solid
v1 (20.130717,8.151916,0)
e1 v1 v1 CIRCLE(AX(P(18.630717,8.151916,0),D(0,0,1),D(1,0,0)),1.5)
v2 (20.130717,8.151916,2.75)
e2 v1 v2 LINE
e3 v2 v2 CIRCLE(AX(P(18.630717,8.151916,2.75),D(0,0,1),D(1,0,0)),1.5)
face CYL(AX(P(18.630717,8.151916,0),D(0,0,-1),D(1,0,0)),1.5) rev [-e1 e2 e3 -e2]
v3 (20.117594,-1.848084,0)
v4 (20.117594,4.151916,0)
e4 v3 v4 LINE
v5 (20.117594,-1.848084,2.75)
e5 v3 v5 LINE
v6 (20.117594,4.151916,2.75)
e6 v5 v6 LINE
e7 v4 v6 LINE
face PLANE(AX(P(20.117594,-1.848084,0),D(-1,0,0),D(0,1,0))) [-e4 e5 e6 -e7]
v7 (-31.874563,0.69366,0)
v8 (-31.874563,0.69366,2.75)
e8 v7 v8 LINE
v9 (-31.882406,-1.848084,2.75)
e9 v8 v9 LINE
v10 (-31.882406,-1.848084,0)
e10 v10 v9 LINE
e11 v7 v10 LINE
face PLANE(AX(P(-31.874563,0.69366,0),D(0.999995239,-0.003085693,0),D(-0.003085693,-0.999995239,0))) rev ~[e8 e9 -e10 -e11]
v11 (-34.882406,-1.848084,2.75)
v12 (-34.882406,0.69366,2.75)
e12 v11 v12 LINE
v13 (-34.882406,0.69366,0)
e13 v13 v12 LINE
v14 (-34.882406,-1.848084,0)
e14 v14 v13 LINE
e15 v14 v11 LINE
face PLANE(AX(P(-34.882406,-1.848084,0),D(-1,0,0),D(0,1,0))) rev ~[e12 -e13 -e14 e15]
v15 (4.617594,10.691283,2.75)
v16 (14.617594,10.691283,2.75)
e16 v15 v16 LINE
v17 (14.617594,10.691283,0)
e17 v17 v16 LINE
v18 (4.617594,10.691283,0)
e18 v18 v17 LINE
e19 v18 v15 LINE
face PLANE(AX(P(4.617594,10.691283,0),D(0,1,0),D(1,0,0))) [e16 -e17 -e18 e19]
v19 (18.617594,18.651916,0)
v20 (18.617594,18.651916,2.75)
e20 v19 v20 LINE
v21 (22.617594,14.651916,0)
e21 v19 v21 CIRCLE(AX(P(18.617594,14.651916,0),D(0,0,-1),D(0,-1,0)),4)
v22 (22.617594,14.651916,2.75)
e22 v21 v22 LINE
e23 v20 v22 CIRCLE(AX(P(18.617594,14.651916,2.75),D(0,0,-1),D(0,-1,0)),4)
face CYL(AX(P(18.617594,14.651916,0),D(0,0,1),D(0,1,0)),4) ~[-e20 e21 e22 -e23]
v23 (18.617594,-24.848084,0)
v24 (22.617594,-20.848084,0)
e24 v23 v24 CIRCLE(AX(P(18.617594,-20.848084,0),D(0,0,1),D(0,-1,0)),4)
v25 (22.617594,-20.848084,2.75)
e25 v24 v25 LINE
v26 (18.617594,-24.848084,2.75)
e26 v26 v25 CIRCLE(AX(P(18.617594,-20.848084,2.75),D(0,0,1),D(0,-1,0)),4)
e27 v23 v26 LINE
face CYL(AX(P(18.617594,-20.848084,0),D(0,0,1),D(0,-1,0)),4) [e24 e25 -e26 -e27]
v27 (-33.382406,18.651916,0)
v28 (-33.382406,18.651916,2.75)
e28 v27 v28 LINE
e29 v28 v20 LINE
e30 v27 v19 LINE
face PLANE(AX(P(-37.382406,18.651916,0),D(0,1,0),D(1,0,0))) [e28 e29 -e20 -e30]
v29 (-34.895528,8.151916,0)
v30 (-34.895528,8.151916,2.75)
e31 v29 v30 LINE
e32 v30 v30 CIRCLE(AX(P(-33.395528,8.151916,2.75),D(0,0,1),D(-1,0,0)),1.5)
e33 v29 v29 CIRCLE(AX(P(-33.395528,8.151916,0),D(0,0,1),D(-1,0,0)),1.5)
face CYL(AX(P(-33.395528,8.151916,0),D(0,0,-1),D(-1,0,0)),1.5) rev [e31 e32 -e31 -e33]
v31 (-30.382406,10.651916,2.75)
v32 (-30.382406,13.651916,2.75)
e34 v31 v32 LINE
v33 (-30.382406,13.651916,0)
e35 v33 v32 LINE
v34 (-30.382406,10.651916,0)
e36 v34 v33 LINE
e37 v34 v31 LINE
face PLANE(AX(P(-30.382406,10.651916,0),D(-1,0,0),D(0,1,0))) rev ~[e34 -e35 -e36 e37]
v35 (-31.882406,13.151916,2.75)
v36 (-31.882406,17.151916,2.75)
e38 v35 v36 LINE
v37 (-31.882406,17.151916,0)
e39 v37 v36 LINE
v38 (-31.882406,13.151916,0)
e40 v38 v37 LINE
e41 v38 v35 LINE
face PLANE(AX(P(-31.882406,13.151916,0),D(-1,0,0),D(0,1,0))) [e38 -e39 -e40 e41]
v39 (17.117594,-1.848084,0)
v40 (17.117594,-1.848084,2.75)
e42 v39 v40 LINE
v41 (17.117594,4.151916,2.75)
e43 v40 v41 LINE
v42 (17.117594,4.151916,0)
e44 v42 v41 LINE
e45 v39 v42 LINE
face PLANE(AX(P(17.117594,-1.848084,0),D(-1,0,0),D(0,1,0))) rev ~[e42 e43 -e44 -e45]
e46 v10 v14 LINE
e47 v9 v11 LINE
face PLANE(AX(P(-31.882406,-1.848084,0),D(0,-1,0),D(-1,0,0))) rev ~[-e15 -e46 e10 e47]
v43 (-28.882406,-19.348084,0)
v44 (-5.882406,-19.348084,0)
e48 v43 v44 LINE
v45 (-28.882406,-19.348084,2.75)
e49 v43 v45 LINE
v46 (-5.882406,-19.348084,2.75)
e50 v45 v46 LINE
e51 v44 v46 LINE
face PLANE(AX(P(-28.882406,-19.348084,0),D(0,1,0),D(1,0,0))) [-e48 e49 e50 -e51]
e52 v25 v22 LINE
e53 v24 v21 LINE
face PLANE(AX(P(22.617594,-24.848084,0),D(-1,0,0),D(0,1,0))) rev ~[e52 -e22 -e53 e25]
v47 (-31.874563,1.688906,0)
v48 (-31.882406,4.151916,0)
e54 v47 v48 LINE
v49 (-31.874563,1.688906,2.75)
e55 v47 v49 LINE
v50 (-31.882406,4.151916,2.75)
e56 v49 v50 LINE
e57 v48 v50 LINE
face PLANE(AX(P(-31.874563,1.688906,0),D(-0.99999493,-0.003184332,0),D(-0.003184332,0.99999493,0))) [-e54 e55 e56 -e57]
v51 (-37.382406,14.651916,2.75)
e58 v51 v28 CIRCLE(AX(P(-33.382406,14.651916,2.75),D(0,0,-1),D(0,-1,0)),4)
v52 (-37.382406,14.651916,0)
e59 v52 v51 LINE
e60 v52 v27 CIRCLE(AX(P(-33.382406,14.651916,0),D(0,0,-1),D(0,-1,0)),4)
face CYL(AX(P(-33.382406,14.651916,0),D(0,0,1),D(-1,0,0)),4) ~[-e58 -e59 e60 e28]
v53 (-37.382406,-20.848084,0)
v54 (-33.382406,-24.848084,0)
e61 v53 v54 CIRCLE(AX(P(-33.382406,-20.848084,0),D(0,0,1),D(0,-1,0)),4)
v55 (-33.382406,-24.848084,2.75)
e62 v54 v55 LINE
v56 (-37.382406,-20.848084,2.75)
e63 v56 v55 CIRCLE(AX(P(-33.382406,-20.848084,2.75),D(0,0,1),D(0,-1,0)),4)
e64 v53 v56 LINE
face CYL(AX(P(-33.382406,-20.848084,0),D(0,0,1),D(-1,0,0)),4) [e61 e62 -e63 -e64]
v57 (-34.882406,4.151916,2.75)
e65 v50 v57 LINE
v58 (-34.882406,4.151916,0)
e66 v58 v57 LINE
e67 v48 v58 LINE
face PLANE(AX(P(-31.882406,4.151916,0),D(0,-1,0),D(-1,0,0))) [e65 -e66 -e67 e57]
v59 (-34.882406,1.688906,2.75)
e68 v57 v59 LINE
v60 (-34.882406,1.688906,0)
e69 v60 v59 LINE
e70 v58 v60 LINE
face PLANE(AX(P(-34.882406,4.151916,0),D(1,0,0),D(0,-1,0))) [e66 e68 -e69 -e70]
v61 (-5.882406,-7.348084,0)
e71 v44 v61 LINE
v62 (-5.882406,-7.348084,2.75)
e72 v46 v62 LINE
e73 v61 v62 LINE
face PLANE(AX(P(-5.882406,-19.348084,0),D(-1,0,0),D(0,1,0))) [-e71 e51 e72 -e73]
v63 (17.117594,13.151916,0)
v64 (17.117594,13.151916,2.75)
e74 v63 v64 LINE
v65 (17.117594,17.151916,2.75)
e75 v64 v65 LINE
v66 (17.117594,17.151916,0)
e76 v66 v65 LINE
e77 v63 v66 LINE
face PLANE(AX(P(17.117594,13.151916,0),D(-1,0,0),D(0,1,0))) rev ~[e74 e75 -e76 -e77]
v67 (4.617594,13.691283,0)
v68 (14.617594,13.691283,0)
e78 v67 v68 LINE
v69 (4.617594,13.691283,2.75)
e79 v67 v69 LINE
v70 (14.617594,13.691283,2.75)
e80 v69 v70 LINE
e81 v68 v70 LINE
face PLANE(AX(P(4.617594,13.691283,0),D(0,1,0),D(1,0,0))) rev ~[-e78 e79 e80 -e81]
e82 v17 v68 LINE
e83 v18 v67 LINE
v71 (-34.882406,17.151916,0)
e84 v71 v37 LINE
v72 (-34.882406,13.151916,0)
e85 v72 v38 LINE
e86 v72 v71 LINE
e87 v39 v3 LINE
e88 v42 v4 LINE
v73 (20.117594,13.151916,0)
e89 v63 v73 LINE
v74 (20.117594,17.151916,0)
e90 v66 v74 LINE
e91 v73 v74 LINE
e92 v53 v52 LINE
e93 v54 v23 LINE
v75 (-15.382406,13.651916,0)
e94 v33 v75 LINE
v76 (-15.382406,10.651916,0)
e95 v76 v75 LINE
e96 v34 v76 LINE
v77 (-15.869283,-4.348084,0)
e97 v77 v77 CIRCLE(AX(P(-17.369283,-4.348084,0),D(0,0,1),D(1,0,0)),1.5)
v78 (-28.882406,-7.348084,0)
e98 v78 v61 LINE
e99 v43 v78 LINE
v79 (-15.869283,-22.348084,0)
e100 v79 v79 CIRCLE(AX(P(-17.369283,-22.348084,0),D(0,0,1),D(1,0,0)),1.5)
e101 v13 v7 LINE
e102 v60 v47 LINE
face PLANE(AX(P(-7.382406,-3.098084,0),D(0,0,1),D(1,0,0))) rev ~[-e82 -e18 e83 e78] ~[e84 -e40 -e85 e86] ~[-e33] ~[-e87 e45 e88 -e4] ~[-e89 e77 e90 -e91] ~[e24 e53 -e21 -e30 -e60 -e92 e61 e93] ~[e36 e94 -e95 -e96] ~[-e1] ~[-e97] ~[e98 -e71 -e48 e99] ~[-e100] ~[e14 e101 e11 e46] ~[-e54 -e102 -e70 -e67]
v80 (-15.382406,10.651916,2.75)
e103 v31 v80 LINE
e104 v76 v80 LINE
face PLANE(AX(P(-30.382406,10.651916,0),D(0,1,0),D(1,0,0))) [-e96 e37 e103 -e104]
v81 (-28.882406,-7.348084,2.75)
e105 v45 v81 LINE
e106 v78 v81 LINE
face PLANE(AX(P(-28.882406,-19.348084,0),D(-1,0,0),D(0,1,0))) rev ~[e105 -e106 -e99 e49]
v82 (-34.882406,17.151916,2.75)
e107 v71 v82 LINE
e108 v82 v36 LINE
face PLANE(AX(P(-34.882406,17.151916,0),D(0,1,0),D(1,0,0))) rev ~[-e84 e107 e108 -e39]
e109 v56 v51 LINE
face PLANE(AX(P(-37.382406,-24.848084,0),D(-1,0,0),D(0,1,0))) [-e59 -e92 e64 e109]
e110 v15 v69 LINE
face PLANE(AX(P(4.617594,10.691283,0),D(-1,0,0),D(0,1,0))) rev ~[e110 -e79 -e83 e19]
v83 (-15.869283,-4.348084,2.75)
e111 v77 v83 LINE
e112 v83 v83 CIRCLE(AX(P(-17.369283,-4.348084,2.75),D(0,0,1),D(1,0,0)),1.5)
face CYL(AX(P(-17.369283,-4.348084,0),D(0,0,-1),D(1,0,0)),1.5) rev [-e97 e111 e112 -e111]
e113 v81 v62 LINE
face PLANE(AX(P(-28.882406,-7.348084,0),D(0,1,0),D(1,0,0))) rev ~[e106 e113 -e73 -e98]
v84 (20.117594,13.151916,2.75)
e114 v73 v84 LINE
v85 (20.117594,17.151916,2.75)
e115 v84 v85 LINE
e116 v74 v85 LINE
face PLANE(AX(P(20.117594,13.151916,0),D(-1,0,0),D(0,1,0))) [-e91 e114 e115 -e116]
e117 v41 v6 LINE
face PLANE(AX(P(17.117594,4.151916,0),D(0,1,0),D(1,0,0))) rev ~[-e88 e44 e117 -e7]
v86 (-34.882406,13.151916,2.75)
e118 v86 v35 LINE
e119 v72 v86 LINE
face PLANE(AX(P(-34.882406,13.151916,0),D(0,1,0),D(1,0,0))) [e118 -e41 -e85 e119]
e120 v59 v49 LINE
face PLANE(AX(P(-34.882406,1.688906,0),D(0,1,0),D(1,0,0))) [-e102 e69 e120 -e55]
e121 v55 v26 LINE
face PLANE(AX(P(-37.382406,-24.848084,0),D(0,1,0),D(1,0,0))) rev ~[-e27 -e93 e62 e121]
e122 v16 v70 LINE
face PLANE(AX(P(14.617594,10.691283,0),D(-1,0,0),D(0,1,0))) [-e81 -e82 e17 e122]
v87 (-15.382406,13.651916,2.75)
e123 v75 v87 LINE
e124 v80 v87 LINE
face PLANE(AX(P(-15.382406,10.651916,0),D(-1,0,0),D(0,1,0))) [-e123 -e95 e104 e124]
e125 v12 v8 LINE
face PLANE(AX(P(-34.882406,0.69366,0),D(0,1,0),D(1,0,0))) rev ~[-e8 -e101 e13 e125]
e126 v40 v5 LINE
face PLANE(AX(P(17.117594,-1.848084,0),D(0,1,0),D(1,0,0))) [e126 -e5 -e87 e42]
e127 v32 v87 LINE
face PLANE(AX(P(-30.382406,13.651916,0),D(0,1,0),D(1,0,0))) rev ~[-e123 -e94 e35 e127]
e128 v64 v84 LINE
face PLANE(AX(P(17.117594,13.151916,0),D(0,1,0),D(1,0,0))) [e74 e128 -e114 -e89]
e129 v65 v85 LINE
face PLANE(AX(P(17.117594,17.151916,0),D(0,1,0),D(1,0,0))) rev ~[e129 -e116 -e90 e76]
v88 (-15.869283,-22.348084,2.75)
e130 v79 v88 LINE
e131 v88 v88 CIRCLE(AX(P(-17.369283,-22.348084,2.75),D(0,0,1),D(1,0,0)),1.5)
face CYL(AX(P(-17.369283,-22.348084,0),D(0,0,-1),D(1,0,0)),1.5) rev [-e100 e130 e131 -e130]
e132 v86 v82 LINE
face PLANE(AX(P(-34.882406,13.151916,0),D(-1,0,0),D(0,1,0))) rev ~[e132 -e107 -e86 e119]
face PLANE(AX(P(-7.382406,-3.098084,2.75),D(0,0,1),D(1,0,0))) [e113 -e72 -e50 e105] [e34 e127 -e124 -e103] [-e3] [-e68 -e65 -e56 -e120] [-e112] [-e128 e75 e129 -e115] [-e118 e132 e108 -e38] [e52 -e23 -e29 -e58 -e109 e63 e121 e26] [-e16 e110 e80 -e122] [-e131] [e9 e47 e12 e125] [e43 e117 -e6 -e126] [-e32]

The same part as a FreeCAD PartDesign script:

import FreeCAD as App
import Part
import Sketcher


def edges_at(feature, points):
    """Names of the edges that pass closest to the given points."""
    edges = feature.Shape.Edges
    near = lambda p: min(range(len(edges)), key=lambda i: edges[i].distToShape(Part.Vertex(*p))[0])
    return sorted({f"Edge{near(p) + 1}" for p in points})

doc = App.newDocument("Part")
params = doc.addObject("Spreadsheet::Sheet", "Params")
for row, (alias, value) in enumerate([
    ("sketch1_diameter", "3 mm"),
    ("sketch1_width", "60 mm"),
    ("sketch1_width2", "23 mm"),
    ("sketch1_width3", "3 mm"),
    ("sketch1_width4", "15 mm"),
    ("pad1_length", "2.75 mm"),
    ("fillet_radius", "4 mm"),
], start=1):
    params.set(f"A{row}", alias)
    params.set(f"B{row}", "=" + value)
    params.setAlias(f"B{row}", alias)

body = doc.addObject("PartDesign::Body", "Body")

# Sketch on XY plane
sketch1 = doc.addObject("Sketcher::SketchObject", "Sketch")
body.addObject(sketch1)
sketch1.AttachmentSupport = (doc.XY_Plane, [""])
sketch1.MapMode = "FlatFace"
sketch1.addGeometry([
    Part.LineSegment(App.Vector(-37.4, 18.7, 0), App.Vector(-37.4, -24.8, 0)),  # 0
    Part.LineSegment(App.Vector(-37.4, -24.8, 0), App.Vector(22.6, -24.8, 0)),  # 1
    Part.LineSegment(App.Vector(22.6, -24.8, 0), App.Vector(22.6, 18.7, 0)),  # 2
    Part.LineSegment(App.Vector(22.6, 18.7, 0), App.Vector(-37.4, 18.7, 0)),  # 3
    Part.Circle(App.Vector(-17.4, -22.3, 0), App.Vector(0, 0, 1), 1.5),  # 4
    Part.LineSegment(App.Vector(-5.9, -19.3, 0), App.Vector(-28.9, -19.3, 0)),  # 5
    Part.LineSegment(App.Vector(-28.9, -19.3, 0), App.Vector(-28.9, -7.3, 0)),  # 6
    Part.LineSegment(App.Vector(-28.9, -7.3, 0), App.Vector(-5.9, -7.3, 0)),  # 7
    Part.LineSegment(App.Vector(-5.9, -7.3, 0), App.Vector(-5.9, -19.3, 0)),  # 8
    Part.Circle(App.Vector(-17.4, -4.3, 0), App.Vector(0, 0, 1), 1.5),  # 9
    Part.LineSegment(App.Vector(-31.9, -1.8, 0), App.Vector(-34.9, -1.8, 0)),  # 10
    Part.LineSegment(App.Vector(-34.9, -1.8, 0), App.Vector(-34.9, 0.7, 0)),  # 11
    Part.LineSegment(App.Vector(-34.9, 0.7, 0), App.Vector(-31.9, 0.7, 0)),  # 12
    Part.LineSegment(App.Vector(-31.9, 0.7, 0), App.Vector(-31.9, -1.8, 0)),  # 13
    Part.LineSegment(App.Vector(-34.9, 4.2, 0), App.Vector(-31.9, 4.2, 0)),  # 14
    Part.LineSegment(App.Vector(-31.9, 4.2, 0), App.Vector(-31.9, 1.7, 0)),  # 15
    Part.LineSegment(App.Vector(-31.9, 1.7, 0), App.Vector(-34.9, 1.7, 0)),  # 16
    Part.LineSegment(App.Vector(-34.9, 1.7, 0), App.Vector(-34.9, 4.2, 0)),  # 17
    Part.Circle(App.Vector(-33.4, 8.2, 0), App.Vector(0, 0, 1), 1.5),  # 18
    Part.LineSegment(App.Vector(-31.9, 13.2, 0), App.Vector(-34.9, 13.2, 0)),  # 19
    Part.LineSegment(App.Vector(-34.9, 13.2, 0), App.Vector(-34.9, 17.2, 0)),  # 20
    Part.LineSegment(App.Vector(-34.9, 17.2, 0), App.Vector(-31.9, 17.2, 0)),  # 21
    Part.LineSegment(App.Vector(-31.9, 17.2, 0), App.Vector(-31.9, 13.2, 0)),  # 22
    Part.LineSegment(App.Vector(-15.4, 10.7, 0), App.Vector(-30.4, 10.7, 0)),  # 23
    Part.LineSegment(App.Vector(-30.4, 10.7, 0), App.Vector(-30.4, 13.7, 0)),  # 24
    Part.LineSegment(App.Vector(-30.4, 13.7, 0), App.Vector(-15.4, 13.7, 0)),  # 25
    Part.LineSegment(App.Vector(-15.4, 13.7, 0), App.Vector(-15.4, 10.7, 0)),  # 26
    Part.LineSegment(App.Vector(20.1, -1.8, 0), App.Vector(17.1, -1.8, 0)),  # 27
    Part.LineSegment(App.Vector(17.1, -1.8, 0), App.Vector(17.1, 4.2, 0)),  # 28
    Part.LineSegment(App.Vector(17.1, 4.2, 0), App.Vector(20.1, 4.2, 0)),  # 29
    Part.LineSegment(App.Vector(20.1, 4.2, 0), App.Vector(20.1, -1.8, 0)),  # 30
    Part.Circle(App.Vector(18.6, 8.2, 0), App.Vector(0, 0, 1), 1.5),  # 31
    Part.LineSegment(App.Vector(14.6, 10.7, 0), App.Vector(4.6, 10.7, 0)),  # 32
    Part.LineSegment(App.Vector(4.6, 10.7, 0), App.Vector(4.6, 13.7, 0)),  # 33
    Part.LineSegment(App.Vector(4.6, 13.7, 0), App.Vector(14.6, 13.7, 0)),  # 34
    Part.LineSegment(App.Vector(14.6, 13.7, 0), App.Vector(14.6, 10.7, 0)),  # 35
    Part.LineSegment(App.Vector(20.1, 13.2, 0), App.Vector(17.1, 13.2, 0)),  # 36
    Part.LineSegment(App.Vector(17.1, 13.2, 0), App.Vector(17.1, 17.2, 0)),  # 37
    Part.LineSegment(App.Vector(17.1, 17.2, 0), App.Vector(20.1, 17.2, 0)),  # 38
    Part.LineSegment(App.Vector(20.1, 17.2, 0), App.Vector(20.1, 13.2, 0)),  # 39
], False)
sketch1.addConstraint([
    Sketcher.Constraint("Coincident", 0, 2, 1, 1),
    Sketcher.Constraint("Coincident", 1, 2, 2, 1),
    Sketcher.Constraint("Coincident", 2, 2, 3, 1),
    Sketcher.Constraint("Coincident", 3, 2, 0, 1),
    Sketcher.Constraint("Coincident", 5, 2, 6, 1),
    Sketcher.Constraint("Coincident", 6, 2, 7, 1),
    Sketcher.Constraint("Coincident", 7, 2, 8, 1),
    Sketcher.Constraint("Coincident", 8, 2, 5, 1),
    Sketcher.Constraint("Coincident", 10, 2, 11, 1),
    Sketcher.Constraint("Coincident", 11, 2, 12, 1),
    Sketcher.Constraint("Coincident", 12, 2, 13, 1),
    Sketcher.Constraint("Coincident", 13, 2, 10, 1),
    Sketcher.Constraint("Coincident", 14, 2, 15, 1),
    Sketcher.Constraint("Coincident", 15, 2, 16, 1),
    Sketcher.Constraint("Coincident", 16, 2, 17, 1),
    Sketcher.Constraint("Coincident", 17, 2, 14, 1),
    Sketcher.Constraint("Coincident", 19, 2, 20, 1),
    Sketcher.Constraint("Coincident", 20, 2, 21, 1),
    Sketcher.Constraint("Coincident", 21, 2, 22, 1),
    Sketcher.Constraint("Coincident", 22, 2, 19, 1),
    Sketcher.Constraint("Coincident", 23, 2, 24, 1),
    Sketcher.Constraint("Coincident", 24, 2, 25, 1),
    Sketcher.Constraint("Coincident", 25, 2, 26, 1),
    Sketcher.Constraint("Coincident", 26, 2, 23, 1),
    Sketcher.Constraint("Coincident", 27, 2, 28, 1),
    Sketcher.Constraint("Coincident", 28, 2, 29, 1),
    Sketcher.Constraint("Coincident", 29, 2, 30, 1),
    Sketcher.Constraint("Coincident", 30, 2, 27, 1),
    Sketcher.Constraint("Coincident", 32, 2, 33, 1),
    Sketcher.Constraint("Coincident", 33, 2, 34, 1),
    Sketcher.Constraint("Coincident", 34, 2, 35, 1),
    Sketcher.Constraint("Coincident", 35, 2, 32, 1),
    Sketcher.Constraint("Coincident", 36, 2, 37, 1),
    Sketcher.Constraint("Coincident", 37, 2, 38, 1),
    Sketcher.Constraint("Coincident", 38, 2, 39, 1),
    Sketcher.Constraint("Coincident", 39, 2, 36, 1),
    Sketcher.Constraint("Vertical", 0),
    Sketcher.Constraint("Horizontal", 1),
    Sketcher.Constraint("Vertical", 2),
    Sketcher.Constraint("Horizontal", 3),
    Sketcher.Constraint("Horizontal", 5),
    Sketcher.Constraint("Vertical", 6),
    Sketcher.Constraint("Horizontal", 7),
    Sketcher.Constraint("Vertical", 8),
    Sketcher.Constraint("Horizontal", 10),
    Sketcher.Constraint("Vertical", 11),
    Sketcher.Constraint("Horizontal", 12),
    Sketcher.Constraint("Horizontal", 14),
    Sketcher.Constraint("Horizontal", 16),
    Sketcher.Constraint("Vertical", 17),
    Sketcher.Constraint("Horizontal", 19),
    Sketcher.Constraint("Vertical", 20),
    Sketcher.Constraint("Horizontal", 21),
    Sketcher.Constraint("Vertical", 22),
    Sketcher.Constraint("Horizontal", 23),
    Sketcher.Constraint("Vertical", 24),
    Sketcher.Constraint("Horizontal", 25),
    Sketcher.Constraint("Vertical", 26),
    Sketcher.Constraint("Horizontal", 27),
    Sketcher.Constraint("Vertical", 28),
    Sketcher.Constraint("Horizontal", 29),
    Sketcher.Constraint("Vertical", 30),
    Sketcher.Constraint("Horizontal", 32),
    Sketcher.Constraint("Vertical", 33),
    Sketcher.Constraint("Horizontal", 34),
    Sketcher.Constraint("Vertical", 35),
    Sketcher.Constraint("Horizontal", 36),
    Sketcher.Constraint("Vertical", 37),
    Sketcher.Constraint("Horizontal", 38),
    Sketcher.Constraint("Vertical", 39),
    Sketcher.Constraint("Equal", 4, 9),
    Sketcher.Constraint("Equal", 9, 18),
    Sketcher.Constraint("Equal", 18, 31),
    Sketcher.Constraint("Horizontal", 18, 3, 31, 3),
    Sketcher.Constraint("Horizontal", 13, 2, 27, 2),
    Sketcher.Constraint("Horizontal", 17, 2, 28, 2),
    Sketcher.Constraint("Horizontal", 22, 2, 36, 2),
    Sketcher.Constraint("Horizontal", 21, 2, 37, 2),
    Sketcher.Constraint("Vertical", 4, 3, 9, 3),
    Sketcher.Constraint("Vertical", 13, 2, 14, 2),
    Sketcher.Constraint("Vertical", 12, 2, 15, 2),
    Sketcher.Constraint("Vertical", 11, 2, 16, 2),
    Sketcher.Constraint("Vertical", 17, 2, 19, 2),
    Sketcher.Constraint("Vertical", 14, 2, 21, 2),
    Sketcher.Constraint("Vertical", 28, 2, 36, 2),
    Sketcher.Constraint("Vertical", 30, 2, 38, 2),
    Sketcher.Constraint("Equal", 21, 27),
    Sketcher.Constraint("Equal", 38, 24),
    Sketcher.Constraint("Equal", 26, 33),
    Sketcher.Constraint("Diameter", 4, 3.0),
    Sketcher.Constraint("DistanceX", 1, 1, 1, 2, 60.0),
    Sketcher.Constraint("DistanceX", 5, 2, 5, 1, 23.0),
    Sketcher.Constraint("DistanceX", 10, 2, 10, 1, 3.0),
    Sketcher.Constraint("DistanceX", 23, 2, 23, 1, 15.0),
    Sketcher.Constraint("DistanceX", 32, 2, 32, 1, 10.0),
    Sketcher.Constraint("DistanceY", 6, 1, 6, 2, 12.0),
    Sketcher.Constraint("DistanceY", 20, 1, 20, 2, 4.0),
    Sketcher.Constraint("DistanceY", 28, 1, 28, 2, 6.0),
    Sketcher.Constraint("DistanceY", 0, 2, 0, 1, 43.5),
    Sketcher.Constraint("DistanceY", 4, 3, 9, 3, 18.0),
    Sketcher.Constraint("DistanceX", 9, 3, 31, 3, 36.0),
    Sketcher.Constraint("DistanceY", 0, 2, 18, 3, 33.0),
    Sketcher.Constraint("DistanceY", 9, 3, 2, 2, 23.0),
    Sketcher.Constraint("DistanceY", 4, 3, 5, 2, 3.0),
    Sketcher.Constraint("DistanceX", 10, 2, 6, 2, 6.0),
    Sketcher.Constraint("DistanceY", 10, 2, 18, 3, 10.0),
    Sketcher.Constraint("DistanceY", 18, 3, 19, 2, 5.0),
    Sketcher.Constraint("DistanceY", 9, 3, 25, 2, 18.0),
    Sketcher.Constraint("DistanceX", 7, 2, 27, 2, 23.0),
    Sketcher.Constraint("DistanceX", 32, 2, 2, 2, 18.0),
    Sketcher.Constraint("DistanceX", 0, 2, 5, 2, 8.5),
    Sketcher.Constraint("DistanceX", 22, 2, 23, 2, 1.5),
    Sketcher.Constraint("DistanceY", 17, 1, 17, 2, 2.463009),
    Sketcher.Constraint("DistanceX", 12, 1, 12, 2, 3.007843),
    Sketcher.Constraint("DistanceY", 11, 1, 11, 2, 2.541744),
    Sketcher.Constraint("DistanceX", 18, 3, -1, 1, 33.395528),
    Sketcher.Constraint("DistanceY", -1, 1, 11, 2, 0.69366),
    Sketcher.Constraint("DistanceX", 12, 2, 9, 3, 14.505279),
    Sketcher.Constraint("DistanceX", 4, 3, -1, 1, 17.369283),
    Sketcher.Constraint("DistanceY", -1, 1, 32, 2, 10.691283),
])
sketch1.setExpression("Constraints[89]", "Params.sketch1_diameter")
sketch1.setExpression("Constraints[90]", "Params.sketch1_width")
sketch1.setExpression("Constraints[91]", "Params.sketch1_width2")
sketch1.setExpression("Constraints[92]", "Params.sketch1_width3")
sketch1.setExpression("Constraints[93]", "Params.sketch1_width4")
pad1 = doc.addObject("PartDesign::Pad", "Pad")
body.addObject(pad1)
pad1.Profile = sketch1
pad1.setExpression("Length", "Params.pad1_length")
doc.recompute()

fillet = doc.addObject("PartDesign::Fillet", "Fillet")
body.addObject(fillet)
fillet.Base = (pad1, edges_at(pad1, [
    (22.618, -24.848, 1.375),
    (-37.382, -24.848, 1.375),
    (-37.382, 18.652, 1.375),
    (22.618, 18.652, 1.375),
]))
fillet.setExpression("Radius", "Params.fillet_radius")

doc.recompute()
